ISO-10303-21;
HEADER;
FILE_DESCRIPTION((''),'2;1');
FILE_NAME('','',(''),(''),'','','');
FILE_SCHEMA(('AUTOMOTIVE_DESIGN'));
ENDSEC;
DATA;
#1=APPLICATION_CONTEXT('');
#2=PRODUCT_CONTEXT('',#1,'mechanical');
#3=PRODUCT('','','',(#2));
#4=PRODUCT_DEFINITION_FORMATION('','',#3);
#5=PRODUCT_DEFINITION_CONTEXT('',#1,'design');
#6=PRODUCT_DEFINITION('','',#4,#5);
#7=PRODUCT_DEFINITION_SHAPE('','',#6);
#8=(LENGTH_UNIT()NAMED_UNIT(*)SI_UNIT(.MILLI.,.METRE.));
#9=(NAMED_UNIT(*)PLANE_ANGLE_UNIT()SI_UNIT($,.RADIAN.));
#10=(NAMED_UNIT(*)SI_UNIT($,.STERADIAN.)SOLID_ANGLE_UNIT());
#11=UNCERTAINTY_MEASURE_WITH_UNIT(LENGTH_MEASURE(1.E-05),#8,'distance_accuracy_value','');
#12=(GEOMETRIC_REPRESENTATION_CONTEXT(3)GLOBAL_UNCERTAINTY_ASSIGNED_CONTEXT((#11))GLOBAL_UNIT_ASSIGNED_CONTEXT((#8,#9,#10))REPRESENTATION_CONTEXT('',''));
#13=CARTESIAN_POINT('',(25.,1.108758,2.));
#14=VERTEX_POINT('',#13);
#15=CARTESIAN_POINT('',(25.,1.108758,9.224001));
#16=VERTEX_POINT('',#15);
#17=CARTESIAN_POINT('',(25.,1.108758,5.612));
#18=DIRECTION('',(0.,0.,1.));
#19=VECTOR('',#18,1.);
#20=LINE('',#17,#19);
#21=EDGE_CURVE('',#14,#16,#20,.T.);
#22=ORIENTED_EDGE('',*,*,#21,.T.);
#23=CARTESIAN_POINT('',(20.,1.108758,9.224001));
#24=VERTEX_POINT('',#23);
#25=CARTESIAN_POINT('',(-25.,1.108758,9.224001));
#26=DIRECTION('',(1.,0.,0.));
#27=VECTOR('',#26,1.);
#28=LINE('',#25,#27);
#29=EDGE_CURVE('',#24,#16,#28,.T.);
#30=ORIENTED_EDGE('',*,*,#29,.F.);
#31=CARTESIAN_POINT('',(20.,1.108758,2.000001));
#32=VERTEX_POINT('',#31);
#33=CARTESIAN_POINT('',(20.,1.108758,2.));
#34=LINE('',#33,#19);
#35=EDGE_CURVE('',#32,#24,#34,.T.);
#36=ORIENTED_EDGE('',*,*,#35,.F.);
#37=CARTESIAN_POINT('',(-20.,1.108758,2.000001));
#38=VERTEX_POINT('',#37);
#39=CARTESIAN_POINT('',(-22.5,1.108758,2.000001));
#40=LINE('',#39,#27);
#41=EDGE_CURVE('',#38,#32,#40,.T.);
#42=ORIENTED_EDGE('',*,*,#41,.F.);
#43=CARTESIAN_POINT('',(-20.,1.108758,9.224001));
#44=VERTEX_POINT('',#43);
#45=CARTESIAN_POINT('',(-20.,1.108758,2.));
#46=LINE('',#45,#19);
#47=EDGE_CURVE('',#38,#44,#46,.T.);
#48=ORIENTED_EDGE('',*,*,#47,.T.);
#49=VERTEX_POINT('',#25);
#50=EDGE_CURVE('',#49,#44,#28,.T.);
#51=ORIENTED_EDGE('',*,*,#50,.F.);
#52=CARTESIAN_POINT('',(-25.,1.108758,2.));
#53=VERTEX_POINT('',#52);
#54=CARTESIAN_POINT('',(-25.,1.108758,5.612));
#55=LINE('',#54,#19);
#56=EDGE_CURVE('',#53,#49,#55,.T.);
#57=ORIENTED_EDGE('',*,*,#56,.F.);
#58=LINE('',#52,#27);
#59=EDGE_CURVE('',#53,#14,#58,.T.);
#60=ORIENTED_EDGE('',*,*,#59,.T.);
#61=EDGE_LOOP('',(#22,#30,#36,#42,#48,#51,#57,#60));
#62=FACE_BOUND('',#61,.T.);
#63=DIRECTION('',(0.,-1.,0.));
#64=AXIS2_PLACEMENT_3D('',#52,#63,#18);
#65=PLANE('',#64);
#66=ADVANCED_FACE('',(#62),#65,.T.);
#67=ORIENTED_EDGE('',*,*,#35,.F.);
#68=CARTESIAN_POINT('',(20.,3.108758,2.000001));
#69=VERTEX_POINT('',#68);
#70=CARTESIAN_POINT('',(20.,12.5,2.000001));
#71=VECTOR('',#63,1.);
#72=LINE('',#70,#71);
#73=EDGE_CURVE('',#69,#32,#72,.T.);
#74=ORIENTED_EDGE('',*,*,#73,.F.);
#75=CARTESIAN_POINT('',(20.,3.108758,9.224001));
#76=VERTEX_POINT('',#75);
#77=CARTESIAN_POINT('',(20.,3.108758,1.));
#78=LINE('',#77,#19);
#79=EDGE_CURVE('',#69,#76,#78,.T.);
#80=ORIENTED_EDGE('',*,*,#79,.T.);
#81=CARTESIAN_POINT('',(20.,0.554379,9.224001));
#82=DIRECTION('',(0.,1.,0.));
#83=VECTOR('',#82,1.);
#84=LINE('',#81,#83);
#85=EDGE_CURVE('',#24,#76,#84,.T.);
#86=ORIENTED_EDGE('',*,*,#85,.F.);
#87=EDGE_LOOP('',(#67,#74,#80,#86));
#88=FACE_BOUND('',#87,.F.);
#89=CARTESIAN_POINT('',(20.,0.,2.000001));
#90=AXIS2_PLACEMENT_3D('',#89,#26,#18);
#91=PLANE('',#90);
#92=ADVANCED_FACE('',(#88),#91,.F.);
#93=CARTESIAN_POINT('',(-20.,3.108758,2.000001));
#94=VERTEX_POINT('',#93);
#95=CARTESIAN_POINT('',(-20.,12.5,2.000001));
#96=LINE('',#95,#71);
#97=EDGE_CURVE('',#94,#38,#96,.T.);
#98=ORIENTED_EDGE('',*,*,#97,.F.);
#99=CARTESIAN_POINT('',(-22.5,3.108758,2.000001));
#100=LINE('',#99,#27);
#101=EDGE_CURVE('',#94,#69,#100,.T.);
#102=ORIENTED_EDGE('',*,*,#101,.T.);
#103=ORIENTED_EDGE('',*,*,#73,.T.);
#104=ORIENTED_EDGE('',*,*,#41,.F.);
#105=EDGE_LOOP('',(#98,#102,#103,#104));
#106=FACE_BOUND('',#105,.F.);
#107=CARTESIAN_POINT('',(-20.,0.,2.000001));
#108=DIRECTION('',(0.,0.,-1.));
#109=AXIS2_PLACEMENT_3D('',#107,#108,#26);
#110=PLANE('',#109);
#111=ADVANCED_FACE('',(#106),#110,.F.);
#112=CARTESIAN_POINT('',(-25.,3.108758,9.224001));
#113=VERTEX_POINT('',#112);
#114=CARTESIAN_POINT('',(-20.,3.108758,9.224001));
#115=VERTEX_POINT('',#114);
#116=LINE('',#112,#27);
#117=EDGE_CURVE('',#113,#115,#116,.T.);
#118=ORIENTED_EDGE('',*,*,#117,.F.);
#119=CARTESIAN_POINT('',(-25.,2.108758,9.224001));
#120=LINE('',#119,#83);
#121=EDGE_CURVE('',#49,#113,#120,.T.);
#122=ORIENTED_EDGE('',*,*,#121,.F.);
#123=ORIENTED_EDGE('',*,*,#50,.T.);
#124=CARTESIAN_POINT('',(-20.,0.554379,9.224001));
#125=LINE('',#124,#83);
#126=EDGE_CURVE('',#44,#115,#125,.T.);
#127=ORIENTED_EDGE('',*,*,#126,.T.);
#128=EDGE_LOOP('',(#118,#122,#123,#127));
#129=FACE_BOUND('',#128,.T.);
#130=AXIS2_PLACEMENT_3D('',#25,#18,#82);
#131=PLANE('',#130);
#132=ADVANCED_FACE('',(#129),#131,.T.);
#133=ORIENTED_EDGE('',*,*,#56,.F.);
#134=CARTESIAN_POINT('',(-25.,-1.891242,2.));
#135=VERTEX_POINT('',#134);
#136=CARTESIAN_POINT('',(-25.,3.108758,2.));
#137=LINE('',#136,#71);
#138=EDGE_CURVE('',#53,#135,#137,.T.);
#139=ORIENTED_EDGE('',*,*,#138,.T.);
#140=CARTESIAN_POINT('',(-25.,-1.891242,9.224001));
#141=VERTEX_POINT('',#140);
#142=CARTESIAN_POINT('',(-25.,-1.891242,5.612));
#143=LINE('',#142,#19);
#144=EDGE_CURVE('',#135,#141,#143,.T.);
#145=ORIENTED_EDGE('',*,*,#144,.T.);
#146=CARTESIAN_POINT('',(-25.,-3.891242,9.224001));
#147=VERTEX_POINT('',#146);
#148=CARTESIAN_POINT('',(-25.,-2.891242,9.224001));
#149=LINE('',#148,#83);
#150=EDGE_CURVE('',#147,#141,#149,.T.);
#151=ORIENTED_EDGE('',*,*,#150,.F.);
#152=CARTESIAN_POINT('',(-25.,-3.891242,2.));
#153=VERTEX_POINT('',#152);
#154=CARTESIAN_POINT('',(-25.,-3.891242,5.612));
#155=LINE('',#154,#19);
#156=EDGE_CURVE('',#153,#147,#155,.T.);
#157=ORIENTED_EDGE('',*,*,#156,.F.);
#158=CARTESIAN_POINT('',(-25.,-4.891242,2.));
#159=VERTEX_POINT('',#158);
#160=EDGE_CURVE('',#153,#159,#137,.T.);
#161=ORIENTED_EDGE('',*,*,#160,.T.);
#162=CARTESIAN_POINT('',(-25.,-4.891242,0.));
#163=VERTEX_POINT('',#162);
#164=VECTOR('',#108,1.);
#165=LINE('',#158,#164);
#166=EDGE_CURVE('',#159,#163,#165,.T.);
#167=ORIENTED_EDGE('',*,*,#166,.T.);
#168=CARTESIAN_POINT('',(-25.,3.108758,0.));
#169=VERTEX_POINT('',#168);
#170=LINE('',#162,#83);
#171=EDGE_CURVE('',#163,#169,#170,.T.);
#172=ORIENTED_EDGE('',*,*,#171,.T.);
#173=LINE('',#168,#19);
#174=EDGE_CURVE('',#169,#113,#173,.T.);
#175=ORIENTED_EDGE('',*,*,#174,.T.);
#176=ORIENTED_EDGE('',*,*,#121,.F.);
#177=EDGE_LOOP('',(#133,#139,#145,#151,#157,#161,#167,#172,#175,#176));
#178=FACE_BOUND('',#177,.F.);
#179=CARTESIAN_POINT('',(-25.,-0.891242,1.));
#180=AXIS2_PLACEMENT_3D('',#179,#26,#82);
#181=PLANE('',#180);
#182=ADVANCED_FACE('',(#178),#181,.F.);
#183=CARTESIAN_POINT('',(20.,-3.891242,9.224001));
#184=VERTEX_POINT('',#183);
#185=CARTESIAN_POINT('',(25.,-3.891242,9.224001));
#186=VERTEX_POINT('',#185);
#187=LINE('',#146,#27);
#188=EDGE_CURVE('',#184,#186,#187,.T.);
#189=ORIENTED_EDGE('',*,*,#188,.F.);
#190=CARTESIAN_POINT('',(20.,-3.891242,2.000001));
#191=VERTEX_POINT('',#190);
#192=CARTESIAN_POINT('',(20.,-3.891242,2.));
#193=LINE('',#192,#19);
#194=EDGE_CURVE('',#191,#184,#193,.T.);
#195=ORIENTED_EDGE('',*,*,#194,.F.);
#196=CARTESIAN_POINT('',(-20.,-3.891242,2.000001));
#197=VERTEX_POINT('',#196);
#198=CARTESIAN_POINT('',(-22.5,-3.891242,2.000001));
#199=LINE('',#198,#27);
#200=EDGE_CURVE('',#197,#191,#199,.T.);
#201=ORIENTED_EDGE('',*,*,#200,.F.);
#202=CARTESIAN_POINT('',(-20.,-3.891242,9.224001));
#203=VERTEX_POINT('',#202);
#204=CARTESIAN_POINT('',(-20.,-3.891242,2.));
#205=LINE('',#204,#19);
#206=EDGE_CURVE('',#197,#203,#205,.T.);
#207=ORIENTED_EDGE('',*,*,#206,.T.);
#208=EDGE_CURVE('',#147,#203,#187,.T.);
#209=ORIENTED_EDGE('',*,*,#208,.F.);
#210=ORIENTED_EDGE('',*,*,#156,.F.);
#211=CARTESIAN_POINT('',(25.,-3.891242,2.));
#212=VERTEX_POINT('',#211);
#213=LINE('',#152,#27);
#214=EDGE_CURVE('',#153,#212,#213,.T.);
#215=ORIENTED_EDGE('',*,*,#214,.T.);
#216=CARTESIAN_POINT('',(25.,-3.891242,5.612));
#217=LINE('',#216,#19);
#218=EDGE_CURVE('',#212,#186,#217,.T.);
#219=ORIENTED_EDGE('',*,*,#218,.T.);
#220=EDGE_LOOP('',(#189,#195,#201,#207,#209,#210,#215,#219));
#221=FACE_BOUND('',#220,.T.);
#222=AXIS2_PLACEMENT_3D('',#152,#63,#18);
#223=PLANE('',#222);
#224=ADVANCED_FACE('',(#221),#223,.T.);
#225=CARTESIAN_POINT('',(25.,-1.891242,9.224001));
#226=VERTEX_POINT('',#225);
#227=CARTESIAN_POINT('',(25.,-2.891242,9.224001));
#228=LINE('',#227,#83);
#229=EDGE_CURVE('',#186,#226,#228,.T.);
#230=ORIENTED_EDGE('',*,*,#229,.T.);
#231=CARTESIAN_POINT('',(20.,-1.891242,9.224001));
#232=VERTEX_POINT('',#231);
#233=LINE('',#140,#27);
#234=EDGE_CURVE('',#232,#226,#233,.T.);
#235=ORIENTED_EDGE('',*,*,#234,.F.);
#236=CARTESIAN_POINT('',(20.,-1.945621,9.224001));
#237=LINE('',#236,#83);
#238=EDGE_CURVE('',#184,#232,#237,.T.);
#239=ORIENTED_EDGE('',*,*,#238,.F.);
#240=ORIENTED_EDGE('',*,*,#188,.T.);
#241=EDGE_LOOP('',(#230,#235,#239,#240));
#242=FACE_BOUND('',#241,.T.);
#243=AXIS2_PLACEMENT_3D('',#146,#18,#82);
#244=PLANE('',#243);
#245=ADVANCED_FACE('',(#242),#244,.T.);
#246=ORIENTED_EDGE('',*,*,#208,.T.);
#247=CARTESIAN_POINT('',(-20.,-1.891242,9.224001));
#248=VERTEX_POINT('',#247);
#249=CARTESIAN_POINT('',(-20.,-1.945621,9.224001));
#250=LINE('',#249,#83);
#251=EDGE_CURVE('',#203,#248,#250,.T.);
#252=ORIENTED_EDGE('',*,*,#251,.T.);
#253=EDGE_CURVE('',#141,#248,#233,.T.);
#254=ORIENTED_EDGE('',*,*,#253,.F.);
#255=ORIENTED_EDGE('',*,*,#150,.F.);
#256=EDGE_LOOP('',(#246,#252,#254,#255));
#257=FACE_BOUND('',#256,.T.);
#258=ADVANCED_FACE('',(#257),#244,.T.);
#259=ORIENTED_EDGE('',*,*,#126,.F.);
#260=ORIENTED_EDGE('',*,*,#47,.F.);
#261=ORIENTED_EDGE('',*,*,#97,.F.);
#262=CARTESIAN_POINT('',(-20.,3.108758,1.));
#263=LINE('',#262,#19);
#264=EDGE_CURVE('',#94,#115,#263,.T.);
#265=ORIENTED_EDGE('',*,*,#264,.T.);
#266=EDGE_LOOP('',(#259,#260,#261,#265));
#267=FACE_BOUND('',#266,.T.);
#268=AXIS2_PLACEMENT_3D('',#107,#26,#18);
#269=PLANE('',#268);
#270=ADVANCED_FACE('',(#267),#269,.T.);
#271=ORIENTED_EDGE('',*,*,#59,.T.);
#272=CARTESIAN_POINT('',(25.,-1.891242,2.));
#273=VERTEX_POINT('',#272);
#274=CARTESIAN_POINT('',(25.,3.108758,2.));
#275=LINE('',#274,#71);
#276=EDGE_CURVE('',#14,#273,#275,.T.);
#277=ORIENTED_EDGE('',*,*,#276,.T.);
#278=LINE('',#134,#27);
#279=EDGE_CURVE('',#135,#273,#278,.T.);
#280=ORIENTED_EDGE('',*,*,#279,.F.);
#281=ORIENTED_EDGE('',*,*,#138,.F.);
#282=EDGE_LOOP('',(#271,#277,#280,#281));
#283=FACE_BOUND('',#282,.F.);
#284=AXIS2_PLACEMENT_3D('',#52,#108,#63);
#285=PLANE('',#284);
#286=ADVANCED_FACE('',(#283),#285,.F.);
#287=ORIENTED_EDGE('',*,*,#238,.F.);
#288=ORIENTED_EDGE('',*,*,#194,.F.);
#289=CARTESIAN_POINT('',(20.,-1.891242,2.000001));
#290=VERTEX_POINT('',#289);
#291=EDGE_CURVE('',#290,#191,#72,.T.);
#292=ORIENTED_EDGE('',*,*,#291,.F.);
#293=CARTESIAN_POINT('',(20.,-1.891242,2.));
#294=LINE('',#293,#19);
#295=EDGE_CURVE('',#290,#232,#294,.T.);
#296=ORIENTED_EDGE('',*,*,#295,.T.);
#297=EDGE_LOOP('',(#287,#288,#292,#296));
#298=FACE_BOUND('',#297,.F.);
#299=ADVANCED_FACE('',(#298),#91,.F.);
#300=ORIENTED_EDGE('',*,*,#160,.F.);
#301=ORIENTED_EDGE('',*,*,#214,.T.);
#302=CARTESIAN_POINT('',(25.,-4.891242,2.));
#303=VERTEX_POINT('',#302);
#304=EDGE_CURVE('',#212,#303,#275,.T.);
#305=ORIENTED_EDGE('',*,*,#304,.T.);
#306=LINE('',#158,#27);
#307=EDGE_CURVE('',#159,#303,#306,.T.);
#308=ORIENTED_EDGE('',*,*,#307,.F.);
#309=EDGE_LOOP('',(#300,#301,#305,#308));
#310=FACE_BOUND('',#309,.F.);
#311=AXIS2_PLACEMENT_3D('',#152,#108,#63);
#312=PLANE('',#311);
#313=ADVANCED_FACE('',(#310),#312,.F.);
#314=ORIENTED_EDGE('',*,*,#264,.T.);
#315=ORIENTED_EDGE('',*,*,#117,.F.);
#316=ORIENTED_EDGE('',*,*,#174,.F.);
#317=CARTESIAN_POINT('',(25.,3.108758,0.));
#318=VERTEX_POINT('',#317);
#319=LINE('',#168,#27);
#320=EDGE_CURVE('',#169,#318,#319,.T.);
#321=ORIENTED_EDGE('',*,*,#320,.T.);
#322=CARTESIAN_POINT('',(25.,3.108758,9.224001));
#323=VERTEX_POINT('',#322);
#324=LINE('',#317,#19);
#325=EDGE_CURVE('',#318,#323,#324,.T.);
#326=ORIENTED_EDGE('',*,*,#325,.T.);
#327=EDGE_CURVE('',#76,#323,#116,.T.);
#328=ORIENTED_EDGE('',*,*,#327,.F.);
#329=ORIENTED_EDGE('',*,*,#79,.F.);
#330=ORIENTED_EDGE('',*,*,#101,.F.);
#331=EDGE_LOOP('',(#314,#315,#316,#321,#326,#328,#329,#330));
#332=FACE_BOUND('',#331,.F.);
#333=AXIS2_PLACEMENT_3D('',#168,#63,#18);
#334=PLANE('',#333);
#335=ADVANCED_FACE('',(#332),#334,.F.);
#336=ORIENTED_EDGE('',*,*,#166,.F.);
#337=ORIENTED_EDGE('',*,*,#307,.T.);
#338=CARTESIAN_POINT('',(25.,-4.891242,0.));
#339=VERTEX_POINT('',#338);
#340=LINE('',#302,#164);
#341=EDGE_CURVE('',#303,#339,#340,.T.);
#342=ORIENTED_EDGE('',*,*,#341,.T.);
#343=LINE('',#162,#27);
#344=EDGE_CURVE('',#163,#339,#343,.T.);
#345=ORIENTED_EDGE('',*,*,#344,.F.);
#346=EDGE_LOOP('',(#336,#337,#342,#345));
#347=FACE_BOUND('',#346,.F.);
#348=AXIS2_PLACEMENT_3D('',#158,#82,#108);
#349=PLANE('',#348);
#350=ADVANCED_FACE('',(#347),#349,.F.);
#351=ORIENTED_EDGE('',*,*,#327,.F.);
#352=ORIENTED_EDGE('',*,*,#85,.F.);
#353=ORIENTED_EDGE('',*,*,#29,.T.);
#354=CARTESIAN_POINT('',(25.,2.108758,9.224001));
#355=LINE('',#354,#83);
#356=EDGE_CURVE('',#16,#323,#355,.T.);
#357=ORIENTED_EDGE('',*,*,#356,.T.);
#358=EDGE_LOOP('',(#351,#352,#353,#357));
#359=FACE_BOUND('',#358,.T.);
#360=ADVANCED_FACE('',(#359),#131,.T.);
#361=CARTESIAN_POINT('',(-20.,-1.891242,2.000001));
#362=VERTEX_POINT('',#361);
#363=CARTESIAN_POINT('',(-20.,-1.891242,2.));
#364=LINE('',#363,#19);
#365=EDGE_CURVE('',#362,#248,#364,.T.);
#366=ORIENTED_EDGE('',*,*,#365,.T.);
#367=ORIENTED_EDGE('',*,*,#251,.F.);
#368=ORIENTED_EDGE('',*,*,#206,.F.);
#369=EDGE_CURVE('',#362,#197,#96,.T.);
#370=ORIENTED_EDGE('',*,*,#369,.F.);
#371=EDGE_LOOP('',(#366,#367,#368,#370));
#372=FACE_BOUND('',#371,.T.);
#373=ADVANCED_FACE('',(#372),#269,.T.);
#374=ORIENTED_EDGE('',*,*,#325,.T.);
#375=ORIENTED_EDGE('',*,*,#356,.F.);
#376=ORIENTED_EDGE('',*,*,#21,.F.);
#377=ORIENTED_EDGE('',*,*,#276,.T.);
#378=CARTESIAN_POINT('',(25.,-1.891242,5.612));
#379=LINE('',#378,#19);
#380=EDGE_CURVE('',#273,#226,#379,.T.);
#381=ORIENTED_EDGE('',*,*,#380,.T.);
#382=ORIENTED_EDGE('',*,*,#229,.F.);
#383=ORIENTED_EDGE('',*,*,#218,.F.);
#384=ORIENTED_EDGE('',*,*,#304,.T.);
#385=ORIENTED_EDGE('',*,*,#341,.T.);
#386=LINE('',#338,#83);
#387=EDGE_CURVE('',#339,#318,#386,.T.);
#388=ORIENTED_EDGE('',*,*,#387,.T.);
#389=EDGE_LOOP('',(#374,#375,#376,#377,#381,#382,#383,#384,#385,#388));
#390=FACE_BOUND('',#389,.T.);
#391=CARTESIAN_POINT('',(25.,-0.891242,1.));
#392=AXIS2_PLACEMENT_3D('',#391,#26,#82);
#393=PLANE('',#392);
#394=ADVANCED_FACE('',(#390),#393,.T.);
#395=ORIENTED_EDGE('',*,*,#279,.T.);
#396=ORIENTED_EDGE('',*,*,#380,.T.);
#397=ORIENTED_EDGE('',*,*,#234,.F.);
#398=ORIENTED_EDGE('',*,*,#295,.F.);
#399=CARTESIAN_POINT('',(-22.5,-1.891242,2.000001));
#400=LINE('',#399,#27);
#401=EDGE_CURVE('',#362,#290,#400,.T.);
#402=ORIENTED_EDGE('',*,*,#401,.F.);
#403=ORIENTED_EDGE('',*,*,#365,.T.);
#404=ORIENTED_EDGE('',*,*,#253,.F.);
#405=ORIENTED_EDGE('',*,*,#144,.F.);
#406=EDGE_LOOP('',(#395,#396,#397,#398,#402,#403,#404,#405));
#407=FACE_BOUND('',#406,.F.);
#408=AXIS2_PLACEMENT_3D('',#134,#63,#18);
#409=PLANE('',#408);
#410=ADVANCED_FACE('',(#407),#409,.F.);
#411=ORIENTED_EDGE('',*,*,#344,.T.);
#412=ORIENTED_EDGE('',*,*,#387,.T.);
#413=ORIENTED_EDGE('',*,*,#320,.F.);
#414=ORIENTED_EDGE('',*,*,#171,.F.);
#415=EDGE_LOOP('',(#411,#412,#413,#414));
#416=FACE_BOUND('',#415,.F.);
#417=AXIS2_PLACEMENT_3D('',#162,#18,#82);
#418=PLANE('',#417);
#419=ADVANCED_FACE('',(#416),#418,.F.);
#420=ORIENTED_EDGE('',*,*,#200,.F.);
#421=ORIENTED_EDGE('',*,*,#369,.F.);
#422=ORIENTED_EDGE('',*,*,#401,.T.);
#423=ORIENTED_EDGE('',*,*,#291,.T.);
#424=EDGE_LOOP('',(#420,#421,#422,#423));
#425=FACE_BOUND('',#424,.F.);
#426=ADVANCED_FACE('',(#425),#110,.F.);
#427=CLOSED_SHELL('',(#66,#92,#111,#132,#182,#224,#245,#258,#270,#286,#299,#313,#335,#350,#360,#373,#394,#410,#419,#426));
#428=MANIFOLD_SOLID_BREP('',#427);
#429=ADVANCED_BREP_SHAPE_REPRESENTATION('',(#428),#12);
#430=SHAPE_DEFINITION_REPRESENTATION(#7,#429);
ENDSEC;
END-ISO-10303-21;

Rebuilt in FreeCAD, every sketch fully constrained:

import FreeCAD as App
import Part
import Sketcher


def add_polygon(sketch, points):
    """Adds a closed chain of lines whose ends are joined by coincident constraints."""
    first, n = sketch.GeometryCount, len(points)
    for a, b in zip(points, points[1:] + points[:1]):
        sketch.addGeometry(Part.LineSegment(App.Vector(*a, 0), App.Vector(*b, 0)), False)
    for i in range(n):
        sketch.addConstraint(Sketcher.Constraint("Coincident", first + i, 2, first + (i + 1) % n, 1))

doc = App.newDocument("Part")
body = doc.addObject("PartDesign::Body", "Body")

sketch1 = doc.addObject("Sketcher::SketchObject", "Sketch")
body.addObject(sketch1)
sketch1.AttachmentSupport = (doc.YZ_Plane, [""])
sketch1.MapMode = "FlatFace"
add_polygon(sketch1, [(-3.9, 9.2), (-3.9, 2), (-4.9, 2), (-4.9, 0), (3.1, 0), (3.1, 9.2), (1.1, 9.2), (1.1, 2), (-1.9, 2), (-1.9, 9.2)])
sketch1.addConstraint([
    Sketcher.Constraint("Vertical", 0),
    Sketcher.Constraint("Horizontal", 1),
    Sketcher.Constraint("Vertical", 2),
    Sketcher.Constraint("Horizontal", 3),
    Sketcher.Constraint("Vertical", 4),
    Sketcher.Constraint("Horizontal", 5),
    Sketcher.Constraint("Vertical", 6),
    Sketcher.Constraint("Horizontal", 7),
    Sketcher.Constraint("Vertical", 8),
    Sketcher.Constraint("Horizontal", 9),
    Sketcher.Constraint("PointOnObject", 2, 2, -1),
    Sketcher.Constraint("Horizontal", 1, 2, 6, 2),
    Sketcher.Constraint("Horizontal", 5, 2, 8, 2),
    Sketcher.Constraint("Equal", 5, 9),
    Sketcher.Constraint("Equal", 9, 2),
    Sketcher.Constraint("DistanceX", 1, 2, 1, 1, 1.0),
    Sketcher.Constraint("DistanceX", 3, 1, 3, 2, 8.0),
    Sketcher.Constraint("DistanceX", 5, 2, 5, 1, 2.0),
    Sketcher.Constraint("DistanceY", 0, 2, 0, 1, 7.224001),
    Sketcher.Constraint("DistanceX", 0, 2, -1, 1, 3.891242),
])
pad1 = doc.addObject("PartDesign::Pad", "Pad")
body.addObject(pad1)
pad1.Profile = sketch1
pad1.Length = 50

sketch2 = doc.addObject("Sketcher::SketchObject", "Sketch001")
body.addObject(sketch2)
sketch2.AttachmentSupport = (doc.XZ_Plane, [""])
sketch2.MapMode = "FlatFace"
add_polygon(sketch2, [(5, 12), (5, 2), (45, 2), (45, 12)])
sketch2.addConstraint([
    Sketcher.Constraint("Vertical", 0),
    Sketcher.Constraint("Horizontal", 1),
    Sketcher.Constraint("Vertical", 2),
    Sketcher.Constraint("Horizontal", 3),
    Sketcher.Constraint("DistanceX", 1, 1, 1, 2, 40.0),
    Sketcher.Constraint("DistanceX", -1, 1, 0, 2, 5.0),
    Sketcher.Constraint("DistanceY", -1, 1, 0, 2, 2.000001),
    Sketcher.Constraint("DistanceY", 0, 2, 0, 1, 10.308505),
])
pocket1 = doc.addObject("PartDesign::Pocket", "Pocket")
body.addObject(pocket1)
pocket1.Profile = sketch2
pocket1.Length = 25
pocket1.Midplane = True
body2 = doc.addObject("PartDesign::Body", "Body001")
doc.recompute()

body.Placement = App.Placement(App.Vector(-25, 0, 0), App.Rotation(App.Vector(0, 0, 1), 0))
boolean = doc.addObject("PartDesign::Boolean", "Boolean")
body2.addObject(boolean)
boolean.Type = "Fuse"
boolean.addObjects([body])

doc.recompute()
